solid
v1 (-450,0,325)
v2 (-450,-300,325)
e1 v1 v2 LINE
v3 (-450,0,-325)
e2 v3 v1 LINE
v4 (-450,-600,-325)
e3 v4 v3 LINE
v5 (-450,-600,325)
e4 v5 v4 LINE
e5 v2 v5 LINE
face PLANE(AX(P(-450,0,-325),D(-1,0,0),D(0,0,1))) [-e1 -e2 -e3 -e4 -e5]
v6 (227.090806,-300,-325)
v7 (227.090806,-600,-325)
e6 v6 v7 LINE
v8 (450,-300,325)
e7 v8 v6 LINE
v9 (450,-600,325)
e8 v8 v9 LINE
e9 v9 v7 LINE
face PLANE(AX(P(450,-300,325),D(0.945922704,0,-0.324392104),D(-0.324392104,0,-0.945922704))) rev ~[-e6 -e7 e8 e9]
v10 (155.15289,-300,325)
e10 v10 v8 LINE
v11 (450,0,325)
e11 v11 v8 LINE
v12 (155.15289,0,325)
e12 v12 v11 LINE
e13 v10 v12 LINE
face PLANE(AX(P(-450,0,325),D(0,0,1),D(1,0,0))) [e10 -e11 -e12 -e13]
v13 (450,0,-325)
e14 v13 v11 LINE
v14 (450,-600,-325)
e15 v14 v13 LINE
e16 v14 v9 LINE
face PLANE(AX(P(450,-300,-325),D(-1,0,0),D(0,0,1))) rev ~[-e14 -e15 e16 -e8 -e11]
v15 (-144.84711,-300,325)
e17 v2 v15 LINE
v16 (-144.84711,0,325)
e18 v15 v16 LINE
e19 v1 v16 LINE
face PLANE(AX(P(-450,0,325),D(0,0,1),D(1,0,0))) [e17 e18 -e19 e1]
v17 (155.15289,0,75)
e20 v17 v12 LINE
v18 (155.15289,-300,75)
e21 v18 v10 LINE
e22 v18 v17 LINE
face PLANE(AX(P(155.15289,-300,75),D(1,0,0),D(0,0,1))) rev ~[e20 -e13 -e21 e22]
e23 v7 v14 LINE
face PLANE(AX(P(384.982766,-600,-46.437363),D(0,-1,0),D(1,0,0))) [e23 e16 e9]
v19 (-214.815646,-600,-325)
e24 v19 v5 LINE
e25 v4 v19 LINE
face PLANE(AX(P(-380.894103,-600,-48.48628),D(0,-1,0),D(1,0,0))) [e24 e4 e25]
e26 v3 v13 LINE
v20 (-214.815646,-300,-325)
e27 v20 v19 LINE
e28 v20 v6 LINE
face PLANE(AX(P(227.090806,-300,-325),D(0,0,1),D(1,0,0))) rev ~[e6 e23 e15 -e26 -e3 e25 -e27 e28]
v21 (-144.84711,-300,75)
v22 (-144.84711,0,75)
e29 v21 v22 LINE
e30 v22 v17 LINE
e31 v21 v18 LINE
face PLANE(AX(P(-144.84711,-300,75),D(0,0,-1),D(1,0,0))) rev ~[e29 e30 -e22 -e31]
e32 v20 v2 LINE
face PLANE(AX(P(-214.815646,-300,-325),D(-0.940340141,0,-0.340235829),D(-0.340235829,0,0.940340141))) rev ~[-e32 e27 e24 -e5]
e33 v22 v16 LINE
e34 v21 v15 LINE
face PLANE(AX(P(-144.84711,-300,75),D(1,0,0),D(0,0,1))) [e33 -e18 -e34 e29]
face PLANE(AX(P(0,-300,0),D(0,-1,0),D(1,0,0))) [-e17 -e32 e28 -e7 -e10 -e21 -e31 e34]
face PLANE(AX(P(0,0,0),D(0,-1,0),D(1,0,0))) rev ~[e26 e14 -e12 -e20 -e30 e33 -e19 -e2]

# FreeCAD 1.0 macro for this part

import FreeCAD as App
import Part
import Sketcher
from FreeCAD import Vector

doc = App.newDocument("Part")
body = doc.addObject("PartDesign::Body", "Body")

# Sketch on XZ plane
sketch1 = body.newObject("Sketcher::SketchObject", "Sketch")
sketch1.AttachmentSupport = (doc.getObject("XZ_Plane"), [""])
sketch1.MapMode = "FlatFace"
sketch1.addGeometry([
    Part.LineSegment(Vector(-450, 325, 0), Vector(-450, -325, 0)),
    Part.LineSegment(Vector(-450, -325, 0), Vector(450, -325, 0)),
    Part.LineSegment(Vector(450, -325, 0), Vector(450, 325, 0)),
    Part.LineSegment(Vector(450, 325, 0), Vector(-450, 325, 0)),
], False)
sketch1.addConstraint([
    Sketcher.Constraint("Coincident", 0, 2, 1, 1),
    Sketcher.Constraint("Coincident", 1, 2, 2, 1),
    Sketcher.Constraint("Coincident", 2, 2, 3, 1),
    Sketcher.Constraint("Coincident", 3, 2, 0, 1),
    Sketcher.Constraint("Vertical", 0),
    Sketcher.Constraint("Horizontal", 1),
    Sketcher.Constraint("Vertical", 2),
    Sketcher.Constraint("Horizontal", 3),
    Sketcher.Constraint("Symmetric", 0, 2, 2, 2, -1, 1),
    Sketcher.Constraint("DistanceX", 1, 1, 1, 2, 900.0),
    Sketcher.Constraint("DistanceY", 0, 2, 0, 1, 650.0),
])
pad1 = body.newObject("PartDesign::Pad", "Pad")
pad1.Profile = sketch1
pad1.Length = 300

# Sketch on XZ plane
sketch2 = body.newObject("Sketcher::SketchObject", "Sketch001")
sketch2.AttachmentSupport = (doc.getObject("XZ_Plane"), [""])
sketch2.MapMode = "FlatFace"
sketch2.AttachmentOffset = App.Placement(Vector(0, 0, 300), App.Rotation())
sketch2.addGeometry([
    Part.LineSegment(Vector(450, -325, 0), Vector(450, 325, 0)),  # 0
    Part.LineSegment(Vector(450, 325, 0), Vector(227, -325, 0)),  # 1
    Part.LineSegment(Vector(227, -325, 0), Vector(450, -325, 0)),  # 2
    Part.LineSegment(Vector(-215, -325, 0), Vector(-450, 325, 0)),  # 3
    Part.LineSegment(Vector(-450, 325, 0), Vector(-450, -325, 0)),  # 4
    Part.LineSegment(Vector(-450, -325, 0), Vector(-215, -325, 0)),  # 5
], False)
sketch2.addConstraint([
    Sketcher.Constraint("Coincident", 0, 2, 1, 1),
    Sketcher.Constraint("Coincident", 1, 2, 2, 1),
    Sketcher.Constraint("Coincident", 2, 2, 0, 1),
    Sketcher.Constraint("Coincident", 3, 2, 4, 1),
    Sketcher.Constraint("Coincident", 4, 2, 5, 1),
    Sketcher.Constraint("Coincident", 5, 2, 3, 1),
    Sketcher.Constraint("Vertical", 0),
    Sketcher.Constraint("Horizontal", 2),
    Sketcher.Constraint("Vertical", 4),
    Sketcher.Constraint("Horizontal", 5),
    Sketcher.Constraint("Symmetric", 2, 2, 3, 2, -1, 1),
    Sketcher.Constraint("Horizontal", 0, 2, 3, 2),
    Sketcher.Constraint("Horizontal", 2, 2, 4, 2),
    Sketcher.Constraint("DistanceY", 0, 1, 0, 2, 650.0),
    Sketcher.Constraint("DistanceX", -1, 1, 0, 2, 450.0),
    Sketcher.Constraint("Distance", 1, 687.15974),
    Sketcher.Constraint("DistanceX", 5, 1, 5, 2, 235.184354),
])
pad2 = body.newObject("PartDesign::Pad", "Pad001")
pad2.Profile = sketch2
pad2.Length = 300

# Sketch on XZ plane
sketch3 = body.newObject("Sketcher::SketchObject", "Sketch002")
sketch3.AttachmentSupport = (doc.getObject("XZ_Plane"), [""])
sketch3.MapMode = "FlatFace"
sketch3.AttachmentOffset = App.Placement(Vector(0, 0, 300), App.Rotation())
sketch3.addGeometry([
    Part.LineSegment(Vector(-145, 325, 0), Vector(-145, 75, 0)),
    Part.LineSegment(Vector(-145, 75, 0), Vector(155, 75, 0)),
    Part.LineSegment(Vector(155, 75, 0), Vector(155, 325, 0)),
    Part.LineSegment(Vector(155, 325, 0), Vector(-145, 325, 0)),
], False)
sketch3.addConstraint([
    Sketcher.Constraint("Coincident", 0, 2, 1, 1),
    Sketcher.Constraint("Coincident", 1, 2, 2, 1),
    Sketcher.Constraint("Coincident", 2, 2, 3, 1),
    Sketcher.Constraint("Coincident", 3, 2, 0, 1),
    Sketcher.Constraint("Vertical", 0),
    Sketcher.Constraint("Horizontal", 1),
    Sketcher.Constraint("Vertical", 2),
    Sketcher.Constraint("Horizontal", 3),
    Sketcher.Constraint("DistanceX", 1, 1, 1, 2, 300.0),
    Sketcher.Constraint("DistanceY", 0, 2, 0, 1, 250.0),
    Sketcher.Constraint("DistanceY", -1, 1, 0, 2, 75.0),
    Sketcher.Constraint("DistanceX", 0, 2, -1, 1, 144.84711),
])
pocket1 = body.newObject("PartDesign::Pocket", "Pocket")
pocket1.Profile = sketch3
pocket1.Type = "ThroughAll"

doc.recompute()
